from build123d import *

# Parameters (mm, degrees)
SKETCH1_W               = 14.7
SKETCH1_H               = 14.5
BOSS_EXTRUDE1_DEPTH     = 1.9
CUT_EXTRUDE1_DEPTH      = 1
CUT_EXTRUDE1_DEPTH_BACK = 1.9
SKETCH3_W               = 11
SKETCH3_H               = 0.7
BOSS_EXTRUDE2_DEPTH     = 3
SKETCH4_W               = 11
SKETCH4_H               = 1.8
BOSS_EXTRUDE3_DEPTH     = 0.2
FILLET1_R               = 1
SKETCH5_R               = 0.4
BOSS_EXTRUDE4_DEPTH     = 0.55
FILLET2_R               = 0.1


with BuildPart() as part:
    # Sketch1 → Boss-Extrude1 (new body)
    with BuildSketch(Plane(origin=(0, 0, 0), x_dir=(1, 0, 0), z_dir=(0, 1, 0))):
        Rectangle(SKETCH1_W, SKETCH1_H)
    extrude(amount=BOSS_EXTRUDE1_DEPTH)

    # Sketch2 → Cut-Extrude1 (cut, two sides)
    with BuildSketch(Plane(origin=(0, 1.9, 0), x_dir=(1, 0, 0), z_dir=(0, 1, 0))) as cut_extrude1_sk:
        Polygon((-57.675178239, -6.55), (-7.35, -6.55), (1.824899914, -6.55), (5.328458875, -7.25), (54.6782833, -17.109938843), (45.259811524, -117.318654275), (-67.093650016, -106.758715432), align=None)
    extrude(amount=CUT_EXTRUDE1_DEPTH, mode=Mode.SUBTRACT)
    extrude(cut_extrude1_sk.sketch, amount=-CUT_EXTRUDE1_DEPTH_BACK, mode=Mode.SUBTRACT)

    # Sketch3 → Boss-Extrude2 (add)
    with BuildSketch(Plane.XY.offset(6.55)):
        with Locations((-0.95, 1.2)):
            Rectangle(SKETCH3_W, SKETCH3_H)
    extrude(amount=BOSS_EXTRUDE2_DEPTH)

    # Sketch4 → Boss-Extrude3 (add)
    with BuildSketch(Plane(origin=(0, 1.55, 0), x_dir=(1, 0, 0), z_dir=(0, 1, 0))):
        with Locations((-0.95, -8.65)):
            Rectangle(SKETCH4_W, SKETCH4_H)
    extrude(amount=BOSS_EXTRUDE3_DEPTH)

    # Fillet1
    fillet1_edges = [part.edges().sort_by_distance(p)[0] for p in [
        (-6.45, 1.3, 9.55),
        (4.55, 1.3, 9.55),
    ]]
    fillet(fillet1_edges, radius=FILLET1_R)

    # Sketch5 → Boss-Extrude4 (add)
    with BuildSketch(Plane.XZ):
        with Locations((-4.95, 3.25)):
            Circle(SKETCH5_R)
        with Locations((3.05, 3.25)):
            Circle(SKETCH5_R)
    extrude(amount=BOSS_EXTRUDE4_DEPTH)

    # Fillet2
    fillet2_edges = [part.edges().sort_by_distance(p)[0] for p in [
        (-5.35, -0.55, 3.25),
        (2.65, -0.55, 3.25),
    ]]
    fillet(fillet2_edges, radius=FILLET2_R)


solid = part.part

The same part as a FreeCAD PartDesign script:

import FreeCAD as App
import Part
import Sketcher
from FreeCAD import Vector
Q = App.Units.Quantity


def edges_at(feature, points):
    """Names of the edges that pass closest to the given points."""
    edges = feature.Shape.Edges
    near = lambda p: min(range(len(edges)), key=lambda i: edges[i].distToShape(Part.Vertex(*p))[0])
    return sorted({f"Edge{near(p) + 1}" for p in points})


def add_polygon(sketch, points):
    """Adds a closed chain of lines whose ends are joined by coincident constraints."""
    first, n = sketch.GeometryCount, len(points)
    for a, b in zip(points, points[1:] + points[:1]):
        sketch.addGeometry(Part.LineSegment(App.Vector(*a, 0), App.Vector(*b, 0)), False)
    for i in range(n):
        sketch.addConstraint(Sketcher.Constraint("Coincident", first + i, 2, first + (i + 1) % n, 1))

doc = App.newDocument("Part")
body = doc.addObject("PartDesign::Body", "Body")

sketch1 = body.newObject("Sketcher::SketchObject", "Sketch")
sketch1.AttachmentSupport = (doc.getObject("XZ_Plane"), [""])
sketch1.MapMode = "FlatFace"
add_polygon(sketch1, [(-7, -7), (-7, 7), (7, 7), (7, -7)])
sketch1.addConstraint([
    Sketcher.Constraint("Vertical", 0),
    Sketcher.Constraint("Horizontal", 1),
    Sketcher.Constraint("Vertical", 2),
    Sketcher.Constraint("Horizontal", 3),
    Sketcher.Constraint("Symmetric", 0, 2, 2, 2, -1, 1),
    Sketcher.Constraint("DistanceX", 1, 1, 1, 2, Q("14.7 mm")),
    Sketcher.Constraint("DistanceY", 0, 1, 0, 2, Q("14.5 mm")),
])
pad1 = body.newObject("PartDesign::Pad", "Pad")
pad1.Profile = sketch1
pad1.Length = 1.9
pad1.Reversed = True

sketch2 = body.newObject("Sketcher::SketchObject", "Sketch001")
sketch2.AttachmentSupport = (doc.getObject("XZ_Plane"), [""])
sketch2.MapMode = "FlatFace"
sketch2.AttachmentOffset = App.Placement(Vector(0, 0, -1.9), App.Rotation())
add_polygon(sketch2, [(1.8, 6.5), (-57.7, 6.5), (-67.1, 106.8), (45.3, 117.3), (54.7, 17.1), (5.3, 7.2)])
sketch2.addConstraint([
    Sketcher.Constraint("Horizontal", 0),
    Sketcher.Constraint("Perpendicular", 1, 2),
    Sketcher.Constraint("Perpendicular", 2, 3),
    Sketcher.Constraint("Parallel", 4, 5),
    Sketcher.Constraint("Equal", 1, 3),
    Sketcher.Constraint("DistanceY", 0, 2, 4, 2, Q("0.7 mm")),
    Sketcher.Constraint("DistanceY", -1, 1, 0, 2, Q("6.55 mm")),
    Sketcher.Constraint("DistanceX", 0, 2, 0, 1, Q("59.500078 mm")),
    Sketcher.Constraint("DistanceX", -1, 1, 5, 2, Q("1.8249 mm")),
    Sketcher.Constraint("Distance", 4, Q("50.325178 mm")),
    Sketcher.Constraint("DistanceX", 1, 2, -1, 1, Q("67.09365 mm")),
    Sketcher.Constraint("DistanceX", -1, 1, 2, 2, Q("45.259812 mm")),
])
pocket1 = body.newObject("PartDesign::Pocket", "Pocket")
pocket1.Profile = sketch2
pocket1.Type = "ThroughAll"
pocket1.Midplane = True

sketch3 = body.newObject("Sketcher::SketchObject", "Sketch002")
sketch3.AttachmentSupport = (doc.getObject("XY_Plane"), [""])
sketch3.MapMode = "FlatFace"
sketch3.AttachmentOffset = App.Placement(Vector(0, 0, 6.55), App.Rotation())
add_polygon(sketch3, [(-6.5, 1.6), (-6.5, 0.8), (4.5, 0.8), (4.5, 1.6)])
sketch3.addConstraint([
    Sketcher.Constraint("Vertical", 0),
    Sketcher.Constraint("Horizontal", 1),
    Sketcher.Constraint("Vertical", 2),
    Sketcher.Constraint("Horizontal", 3),
    Sketcher.Constraint("DistanceX", 1, 1, 1, 2, Q("11 mm")),
    Sketcher.Constraint("DistanceY", 0, 2, 0, 1, Q("0.7 mm")),
    Sketcher.Constraint("DistanceX", 0, 2, -1, 1, Q("6.45 mm")),
    Sketcher.Constraint("DistanceY", -1, 1, 0, 2, Q("0.85 mm")),
])
pad2 = body.newObject("PartDesign::Pad", "Pad001")
pad2.Profile = sketch3
pad2.Length = 3

sketch4 = body.newObject("Sketcher::SketchObject", "Sketch003")
sketch4.AttachmentSupport = (doc.getObject("XZ_Plane"), [""])
sketch4.MapMode = "FlatFace"
sketch4.AttachmentOffset = App.Placement(Vector(0, 0, -1.55), App.Rotation())
add_polygon(sketch4, [(-6.5, 7.8), (-6.5, 9.6), (4.5, 9.6), (4.5, 7.8)])
sketch4.addConstraint([
    Sketcher.Constraint("Vertical", 0),
    Sketcher.Constraint("Horizontal", 1),
    Sketcher.Constraint("Vertical", 2),
    Sketcher.Constraint("Horizontal", 3),
    Sketcher.Constraint("DistanceX", 1, 1, 1, 2, Q("11 mm")),
    Sketcher.Constraint("DistanceY", 0, 1, 0, 2, Q("1.8 mm")),
    Sketcher.Constraint("DistanceX", 0, 2, -1, 1, Q("6.45 mm")),
    Sketcher.Constraint("DistanceY", -1, 1, 0, 2, Q("9.55 mm")),
])
pad3 = body.newObject("PartDesign::Pad", "Pad002")
pad3.Profile = sketch4
pad3.Length = 0.2
pad3.Reversed = True
doc.recompute()

fillet = body.newObject("PartDesign::Fillet", "Fillet")
fillet.Base = (pad3, edges_at(pad3, [(-6.45, 1.3, 9.55), (4.55, 1.3, 9.55)]))
fillet.Radius = 1

sketch5 = body.newObject("Sketcher::SketchObject", "Sketch004")
sketch5.AttachmentSupport = (doc.getObject("XZ_Plane"), [""])
sketch5.MapMode = "FlatFace"
sketch5.addGeometry([
    Part.Circle(Vector(-4.95, 3.25, 0), Vector(0, 0, 1), 0.4),
    Part.Circle(Vector(3.05, 3.25, 0), Vector(0, 0, 1), 0.4),
], False)
sketch5.addConstraint([
    Sketcher.Constraint("Equal", 0, 1),
    Sketcher.Constraint("Horizontal", 0, 3, 1, 3),
    Sketcher.Constraint("Diameter", 0, Q("0.8 mm")),
    Sketcher.Constraint("DistanceX", 0, 3, 1, 3, Q("8 mm")),
    Sketcher.Constraint("DistanceX", 0, 3, -1, 1, Q("4.95 mm")),
    Sketcher.Constraint("DistanceY", -1, 1, 0, 3, Q("3.25 mm")),
])
pad4 = body.newObject("PartDesign::Pad", "Pad003")
pad4.Profile = sketch5
pad4.Length = 0.55
doc.recompute()

fillet2 = body.newObject("PartDesign::Fillet", "Fillet001")
fillet2.Base = (pad4, edges_at(pad4, [(-5.35, -0.55, 3.25), (2.65, -0.55, 3.25)]))
fillet2.Radius = 0.1

doc.recompute()
